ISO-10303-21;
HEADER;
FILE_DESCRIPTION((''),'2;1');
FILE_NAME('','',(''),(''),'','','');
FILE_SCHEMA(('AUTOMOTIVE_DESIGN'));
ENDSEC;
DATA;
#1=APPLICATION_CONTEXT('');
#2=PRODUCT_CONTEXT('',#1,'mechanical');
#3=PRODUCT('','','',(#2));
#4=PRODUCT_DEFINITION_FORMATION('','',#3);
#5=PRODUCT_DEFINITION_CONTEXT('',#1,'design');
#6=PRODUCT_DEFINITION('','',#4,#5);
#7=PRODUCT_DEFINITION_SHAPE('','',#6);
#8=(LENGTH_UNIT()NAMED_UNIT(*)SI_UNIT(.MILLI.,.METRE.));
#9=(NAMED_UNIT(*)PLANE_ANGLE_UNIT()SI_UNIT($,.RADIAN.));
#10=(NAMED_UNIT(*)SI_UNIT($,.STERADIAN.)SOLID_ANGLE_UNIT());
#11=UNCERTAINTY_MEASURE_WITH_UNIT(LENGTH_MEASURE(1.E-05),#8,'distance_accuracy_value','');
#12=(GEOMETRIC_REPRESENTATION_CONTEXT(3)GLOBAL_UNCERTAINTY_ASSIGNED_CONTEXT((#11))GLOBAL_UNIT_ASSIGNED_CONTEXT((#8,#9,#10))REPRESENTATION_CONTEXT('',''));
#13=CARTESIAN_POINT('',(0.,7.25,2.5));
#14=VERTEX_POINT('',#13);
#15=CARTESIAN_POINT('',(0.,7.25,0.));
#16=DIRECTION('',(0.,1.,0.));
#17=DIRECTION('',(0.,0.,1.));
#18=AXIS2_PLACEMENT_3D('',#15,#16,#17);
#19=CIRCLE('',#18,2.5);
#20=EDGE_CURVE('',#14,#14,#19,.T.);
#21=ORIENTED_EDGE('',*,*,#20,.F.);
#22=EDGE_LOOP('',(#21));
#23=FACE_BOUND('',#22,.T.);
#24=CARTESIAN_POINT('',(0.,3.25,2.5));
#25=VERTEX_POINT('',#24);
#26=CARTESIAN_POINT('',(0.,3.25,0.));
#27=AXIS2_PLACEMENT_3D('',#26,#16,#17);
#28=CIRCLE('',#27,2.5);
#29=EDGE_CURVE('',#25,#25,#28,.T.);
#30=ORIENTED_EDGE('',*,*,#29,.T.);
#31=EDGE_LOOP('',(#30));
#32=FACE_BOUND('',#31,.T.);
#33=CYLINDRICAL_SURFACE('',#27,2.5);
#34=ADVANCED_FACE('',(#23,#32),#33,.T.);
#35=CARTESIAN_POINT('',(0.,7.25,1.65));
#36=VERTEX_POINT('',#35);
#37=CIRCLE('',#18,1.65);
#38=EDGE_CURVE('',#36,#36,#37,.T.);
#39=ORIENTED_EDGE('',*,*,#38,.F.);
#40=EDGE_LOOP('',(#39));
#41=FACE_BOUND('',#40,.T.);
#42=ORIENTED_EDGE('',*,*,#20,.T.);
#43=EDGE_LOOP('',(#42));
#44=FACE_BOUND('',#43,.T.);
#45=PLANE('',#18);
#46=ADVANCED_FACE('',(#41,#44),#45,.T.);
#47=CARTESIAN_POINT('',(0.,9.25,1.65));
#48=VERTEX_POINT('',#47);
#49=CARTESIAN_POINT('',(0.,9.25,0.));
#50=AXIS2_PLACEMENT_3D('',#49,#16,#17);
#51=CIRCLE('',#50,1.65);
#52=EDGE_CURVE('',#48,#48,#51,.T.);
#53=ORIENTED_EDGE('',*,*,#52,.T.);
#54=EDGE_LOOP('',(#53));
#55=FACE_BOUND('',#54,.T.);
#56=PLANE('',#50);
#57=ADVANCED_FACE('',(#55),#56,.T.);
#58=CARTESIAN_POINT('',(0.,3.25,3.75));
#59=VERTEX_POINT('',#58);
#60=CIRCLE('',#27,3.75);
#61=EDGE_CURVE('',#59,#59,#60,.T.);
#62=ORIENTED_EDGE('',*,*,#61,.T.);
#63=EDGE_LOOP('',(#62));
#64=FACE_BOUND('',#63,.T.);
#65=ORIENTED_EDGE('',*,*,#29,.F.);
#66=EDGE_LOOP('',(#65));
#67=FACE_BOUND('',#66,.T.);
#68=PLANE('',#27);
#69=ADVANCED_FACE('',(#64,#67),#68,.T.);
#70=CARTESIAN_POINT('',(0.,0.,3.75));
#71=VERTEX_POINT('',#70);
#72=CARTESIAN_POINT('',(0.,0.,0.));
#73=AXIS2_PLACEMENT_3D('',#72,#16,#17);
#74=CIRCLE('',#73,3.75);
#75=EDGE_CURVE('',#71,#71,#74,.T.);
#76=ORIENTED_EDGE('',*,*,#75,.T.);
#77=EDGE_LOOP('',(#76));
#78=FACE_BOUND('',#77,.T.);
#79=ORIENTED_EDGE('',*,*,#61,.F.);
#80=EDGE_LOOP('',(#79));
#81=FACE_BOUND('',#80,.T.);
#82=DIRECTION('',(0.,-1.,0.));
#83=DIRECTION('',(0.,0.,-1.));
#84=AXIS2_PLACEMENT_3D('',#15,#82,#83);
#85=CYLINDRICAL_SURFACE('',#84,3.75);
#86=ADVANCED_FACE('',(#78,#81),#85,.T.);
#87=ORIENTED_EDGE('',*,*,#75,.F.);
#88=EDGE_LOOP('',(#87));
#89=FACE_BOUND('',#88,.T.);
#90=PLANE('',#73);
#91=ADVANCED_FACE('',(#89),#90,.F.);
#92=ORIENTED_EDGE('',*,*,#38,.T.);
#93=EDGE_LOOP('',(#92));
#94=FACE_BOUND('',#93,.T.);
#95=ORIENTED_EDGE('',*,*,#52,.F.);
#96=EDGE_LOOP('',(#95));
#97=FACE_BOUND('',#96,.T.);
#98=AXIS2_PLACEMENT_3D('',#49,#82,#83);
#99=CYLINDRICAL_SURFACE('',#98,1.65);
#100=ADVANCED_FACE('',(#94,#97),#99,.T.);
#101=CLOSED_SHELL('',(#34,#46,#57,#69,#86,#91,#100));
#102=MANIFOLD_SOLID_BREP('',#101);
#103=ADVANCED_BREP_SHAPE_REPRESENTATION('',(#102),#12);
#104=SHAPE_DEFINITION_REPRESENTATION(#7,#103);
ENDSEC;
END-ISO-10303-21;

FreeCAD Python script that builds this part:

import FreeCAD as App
import Part
import Sketcher

V = App.Vector

doc = App.newDocument("Part")
body = doc.addObject("PartDesign::Body", "Body")

sketch1 = body.newObject("Sketcher::SketchObject", "Sketch")
sketch1.AttachmentSupport = (doc.getObject("XZ_Plane"), [""])
sketch1.MapMode = "FlatFace"
sketch1.addGeometry(Part.Circle(V(0, 0, 0), V(0, 0, 1), 3.8), False)
sketch1.addConstraint([
    Sketcher.Constraint("Coincident", 0, 3, -1, 1),
    Sketcher.Constraint("Diameter", 0, 7.5),
])
pad1 = body.newObject("PartDesign::Pad", "Pad")
pad1.Profile = sketch1
pad1.Length = 7.25
pad1.Reversed = True

sketch2 = body.newObject("Sketcher::SketchObject", "Sketch001")
sketch2.AttachmentSupport = (doc.getObject("XZ_Plane"), [""])
sketch2.MapMode = "FlatFace"
sketch2.AttachmentOffset = App.Placement(V(0, 0, -7.25), App.Rotation())
sketch2.addGeometry([
    Part.Circle(V(0, 0, 0), V(0, 0, 1), 3.8),
    Part.Circle(V(0, 0, 0), V(0, 0, 1), 2.5),
], False)
sketch2.addConstraint([
    Sketcher.Constraint("Coincident", 0, 3, -1, 1),
    Sketcher.Constraint("Coincident", 1, 3, -1, 1),
    Sketcher.Constraint("Diameter", 1, 5.0),
    Sketcher.Constraint("Diameter", 0, 7.5),
])
pocket1 = body.newObject("PartDesign::Pocket", "Pocket")
pocket1.Profile = sketch2
pocket1.Length = 4
pocket1.Reversed = True

sketch3 = body.newObject("Sketcher::SketchObject", "Sketch002")
sketch3.AttachmentSupport = (doc.getObject("XZ_Plane"), [""])
sketch3.MapMode = "FlatFace"
sketch3.AttachmentOffset = App.Placement(V(0, 0, -7.25), App.Rotation())
sketch3.addGeometry(Part.Circle(V(0, 0, 0), V(0, 0, 1), 1.6), False)
sketch3.addConstraint([
    Sketcher.Constraint("Coincident", 0, 3, -1, 1),
    Sketcher.Constraint("Diameter", 0, 3.3),
])
pad2 = body.newObject("PartDesign::Pad", "Pad001")
pad2.Profile = sketch3
pad2.Length = 2
pad2.Reversed = True

doc.recompute()
